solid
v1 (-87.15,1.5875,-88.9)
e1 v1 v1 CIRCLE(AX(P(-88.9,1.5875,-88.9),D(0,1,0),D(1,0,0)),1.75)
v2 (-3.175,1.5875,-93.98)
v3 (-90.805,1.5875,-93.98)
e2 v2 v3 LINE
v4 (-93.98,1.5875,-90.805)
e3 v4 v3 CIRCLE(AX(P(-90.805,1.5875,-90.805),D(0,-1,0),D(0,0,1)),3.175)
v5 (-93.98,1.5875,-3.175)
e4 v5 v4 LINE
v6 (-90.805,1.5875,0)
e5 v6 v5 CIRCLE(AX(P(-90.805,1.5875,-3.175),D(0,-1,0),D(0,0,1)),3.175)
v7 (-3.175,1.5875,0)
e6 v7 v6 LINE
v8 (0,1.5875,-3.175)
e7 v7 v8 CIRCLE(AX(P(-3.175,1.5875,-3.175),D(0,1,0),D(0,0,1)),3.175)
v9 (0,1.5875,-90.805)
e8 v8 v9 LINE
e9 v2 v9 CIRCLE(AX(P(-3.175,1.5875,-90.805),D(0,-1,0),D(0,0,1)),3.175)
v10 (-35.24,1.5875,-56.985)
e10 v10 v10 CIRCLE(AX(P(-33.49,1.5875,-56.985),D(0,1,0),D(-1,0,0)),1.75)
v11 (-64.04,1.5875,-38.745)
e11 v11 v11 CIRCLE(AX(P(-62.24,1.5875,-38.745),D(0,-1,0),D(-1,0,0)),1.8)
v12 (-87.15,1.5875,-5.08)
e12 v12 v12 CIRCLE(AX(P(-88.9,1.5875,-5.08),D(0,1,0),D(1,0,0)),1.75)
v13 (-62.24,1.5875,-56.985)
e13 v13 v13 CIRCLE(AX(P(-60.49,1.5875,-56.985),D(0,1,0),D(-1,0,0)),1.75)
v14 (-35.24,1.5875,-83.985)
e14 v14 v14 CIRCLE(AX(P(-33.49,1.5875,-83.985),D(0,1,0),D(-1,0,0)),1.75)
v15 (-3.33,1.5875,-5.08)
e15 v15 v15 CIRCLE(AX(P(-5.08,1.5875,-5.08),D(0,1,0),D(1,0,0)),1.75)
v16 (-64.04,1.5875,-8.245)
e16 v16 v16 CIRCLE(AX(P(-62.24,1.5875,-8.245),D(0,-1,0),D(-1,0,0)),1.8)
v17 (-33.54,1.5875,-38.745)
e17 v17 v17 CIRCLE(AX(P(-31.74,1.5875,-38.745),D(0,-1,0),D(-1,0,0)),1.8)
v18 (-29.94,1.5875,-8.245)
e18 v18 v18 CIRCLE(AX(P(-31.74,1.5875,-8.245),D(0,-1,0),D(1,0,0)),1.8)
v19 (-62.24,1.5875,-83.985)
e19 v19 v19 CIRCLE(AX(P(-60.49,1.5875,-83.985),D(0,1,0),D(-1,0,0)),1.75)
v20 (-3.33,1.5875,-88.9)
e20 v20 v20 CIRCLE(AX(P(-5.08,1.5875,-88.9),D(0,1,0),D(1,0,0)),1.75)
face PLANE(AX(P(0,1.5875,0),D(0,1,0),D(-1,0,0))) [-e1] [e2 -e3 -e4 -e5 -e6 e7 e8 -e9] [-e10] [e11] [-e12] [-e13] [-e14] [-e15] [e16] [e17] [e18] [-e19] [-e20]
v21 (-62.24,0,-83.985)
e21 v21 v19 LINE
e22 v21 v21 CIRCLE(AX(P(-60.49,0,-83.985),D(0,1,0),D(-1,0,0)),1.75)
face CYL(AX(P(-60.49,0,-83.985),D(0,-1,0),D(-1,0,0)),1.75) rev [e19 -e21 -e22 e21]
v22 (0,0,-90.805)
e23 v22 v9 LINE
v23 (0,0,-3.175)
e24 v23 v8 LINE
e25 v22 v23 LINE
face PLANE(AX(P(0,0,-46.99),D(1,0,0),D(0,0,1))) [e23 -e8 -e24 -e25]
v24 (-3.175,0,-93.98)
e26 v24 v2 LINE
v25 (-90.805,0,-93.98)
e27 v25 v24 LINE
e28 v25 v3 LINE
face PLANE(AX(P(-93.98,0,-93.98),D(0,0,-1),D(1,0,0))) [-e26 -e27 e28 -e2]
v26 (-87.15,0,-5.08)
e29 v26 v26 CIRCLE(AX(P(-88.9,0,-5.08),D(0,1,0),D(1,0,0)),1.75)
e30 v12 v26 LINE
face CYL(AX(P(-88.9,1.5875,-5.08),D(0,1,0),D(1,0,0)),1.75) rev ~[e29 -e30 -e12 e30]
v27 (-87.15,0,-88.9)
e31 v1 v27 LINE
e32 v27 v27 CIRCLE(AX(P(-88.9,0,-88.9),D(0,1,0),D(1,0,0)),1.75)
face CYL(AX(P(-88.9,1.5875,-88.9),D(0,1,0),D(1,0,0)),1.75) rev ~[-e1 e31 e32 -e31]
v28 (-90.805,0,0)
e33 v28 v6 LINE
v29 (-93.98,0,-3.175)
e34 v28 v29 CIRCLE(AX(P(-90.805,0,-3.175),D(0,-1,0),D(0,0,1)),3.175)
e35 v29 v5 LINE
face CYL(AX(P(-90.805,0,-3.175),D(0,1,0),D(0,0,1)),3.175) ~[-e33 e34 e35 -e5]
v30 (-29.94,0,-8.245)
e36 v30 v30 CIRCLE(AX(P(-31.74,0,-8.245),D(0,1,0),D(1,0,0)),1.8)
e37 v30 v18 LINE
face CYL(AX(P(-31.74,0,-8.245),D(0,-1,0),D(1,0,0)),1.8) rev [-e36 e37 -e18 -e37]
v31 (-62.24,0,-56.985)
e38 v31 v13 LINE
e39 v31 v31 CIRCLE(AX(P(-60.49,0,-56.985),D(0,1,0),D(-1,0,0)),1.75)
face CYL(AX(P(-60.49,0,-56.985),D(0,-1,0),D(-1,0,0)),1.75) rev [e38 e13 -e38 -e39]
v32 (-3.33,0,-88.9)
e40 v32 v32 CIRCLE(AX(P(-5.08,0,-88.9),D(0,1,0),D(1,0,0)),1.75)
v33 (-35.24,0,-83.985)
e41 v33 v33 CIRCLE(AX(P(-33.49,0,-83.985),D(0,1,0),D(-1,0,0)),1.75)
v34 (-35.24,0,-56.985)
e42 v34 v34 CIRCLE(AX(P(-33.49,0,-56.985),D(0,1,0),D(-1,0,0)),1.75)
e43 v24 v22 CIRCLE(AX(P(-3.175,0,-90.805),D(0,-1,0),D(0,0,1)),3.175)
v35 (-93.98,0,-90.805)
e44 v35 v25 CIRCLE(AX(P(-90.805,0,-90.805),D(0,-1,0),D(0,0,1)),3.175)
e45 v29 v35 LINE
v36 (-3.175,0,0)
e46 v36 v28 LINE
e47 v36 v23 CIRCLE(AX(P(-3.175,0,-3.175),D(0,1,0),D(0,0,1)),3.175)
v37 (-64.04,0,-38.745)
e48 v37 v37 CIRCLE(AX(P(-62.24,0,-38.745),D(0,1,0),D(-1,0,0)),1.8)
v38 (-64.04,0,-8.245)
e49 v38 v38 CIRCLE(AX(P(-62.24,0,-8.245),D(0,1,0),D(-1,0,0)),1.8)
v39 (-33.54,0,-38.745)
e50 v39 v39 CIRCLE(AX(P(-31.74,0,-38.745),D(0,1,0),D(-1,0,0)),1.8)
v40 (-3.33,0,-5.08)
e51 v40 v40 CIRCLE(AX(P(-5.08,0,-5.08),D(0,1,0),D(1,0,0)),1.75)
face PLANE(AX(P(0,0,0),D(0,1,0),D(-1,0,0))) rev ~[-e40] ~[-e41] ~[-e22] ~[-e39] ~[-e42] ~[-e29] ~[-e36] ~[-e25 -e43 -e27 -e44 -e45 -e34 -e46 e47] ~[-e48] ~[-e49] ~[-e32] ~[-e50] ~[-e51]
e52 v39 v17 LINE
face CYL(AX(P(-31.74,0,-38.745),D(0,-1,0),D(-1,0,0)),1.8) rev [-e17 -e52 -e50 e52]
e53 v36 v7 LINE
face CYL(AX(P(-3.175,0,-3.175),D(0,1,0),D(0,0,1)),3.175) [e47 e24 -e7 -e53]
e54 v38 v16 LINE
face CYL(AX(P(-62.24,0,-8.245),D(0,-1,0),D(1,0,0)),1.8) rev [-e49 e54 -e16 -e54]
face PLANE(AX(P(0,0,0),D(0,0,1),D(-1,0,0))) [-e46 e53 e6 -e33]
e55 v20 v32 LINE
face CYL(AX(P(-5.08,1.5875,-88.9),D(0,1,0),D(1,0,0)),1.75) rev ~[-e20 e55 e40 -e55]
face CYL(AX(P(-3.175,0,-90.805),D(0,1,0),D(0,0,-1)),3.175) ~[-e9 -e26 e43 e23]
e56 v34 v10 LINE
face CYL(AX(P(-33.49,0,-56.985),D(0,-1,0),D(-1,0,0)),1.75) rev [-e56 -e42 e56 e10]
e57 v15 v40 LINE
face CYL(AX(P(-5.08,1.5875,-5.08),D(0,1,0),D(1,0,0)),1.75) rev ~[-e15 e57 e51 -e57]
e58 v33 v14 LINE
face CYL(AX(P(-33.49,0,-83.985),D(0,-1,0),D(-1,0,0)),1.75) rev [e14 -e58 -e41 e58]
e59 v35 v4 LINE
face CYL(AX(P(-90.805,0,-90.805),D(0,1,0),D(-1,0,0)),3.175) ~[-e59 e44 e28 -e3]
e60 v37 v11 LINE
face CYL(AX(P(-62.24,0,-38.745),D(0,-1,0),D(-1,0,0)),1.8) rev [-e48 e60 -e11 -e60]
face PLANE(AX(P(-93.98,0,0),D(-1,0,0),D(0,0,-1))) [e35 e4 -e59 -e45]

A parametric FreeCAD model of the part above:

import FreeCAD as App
import Part
import Sketcher

V = App.Vector
Q = App.Units.Quantity


def edges_at(feature, points):
    """Names of the edges that pass closest to the given points."""
    edges = feature.Shape.Edges
    near = lambda p: min(range(len(edges)), key=lambda i: edges[i].distToShape(Part.Vertex(*p))[0])
    return sorted({f"Edge{near(p) + 1}" for p in points})

doc = App.newDocument("Part")
body = doc.addObject("PartDesign::Body", "Body")

# Sketch on XZ plane
sketch1 = body.newObject("Sketcher::SketchObject", "Sketch")
sketch1.AttachmentSupport = (doc.getObject("XZ_Plane"), [""])
sketch1.MapMode = "FlatFace"
sketch1.addGeometry(Part.LineSegment(V(-93.98, 0, 0), V(0, 0, 0)), False)
sketch1.addGeometry(Part.LineSegment(V(0, 0, 0), V(0, -93.98, 0)), False)
sketch1.addGeometry(Part.LineSegment(V(0, -93.98, 0), V(-93.98, -93.98, 0)), False)
sketch1.addGeometry(Part.LineSegment(V(-93.98, -93.98, 0), V(-93.98, 0, 0)), False)
sketch1.addGeometry(Part.Circle(V(-33.49, -83.985, 0), V(0, 0, 1), 1.75), False)
sketch1.addGeometry(Part.Circle(V(-33.49, -56.985, 0), V(0, 0, 1), 1.75), False)
sketch1.addGeometry(Part.Circle(V(-60.49, -83.985, 0), V(0, 0, 1), 1.75), False)
sketch1.addGeometry(Part.Circle(V(-60.49, -56.985, 0), V(0, 0, 1), 1.75), False)
sketch1.addGeometry(Part.Circle(V(-31.74, -38.745, 0), V(0, 0, 1), 1.8), False)
sketch1.addGeometry(Part.Circle(V(-31.74, -8.245, 0), V(0, 0, 1), 1.8), False)
sketch1.addGeometry(Part.Circle(V(-62.24, -38.745, 0), V(0, 0, 1), 1.8), False)
sketch1.addGeometry(Part.Circle(V(-62.24, -8.245, 0), V(0, 0, 1), 1.8), False)
sketch1.addConstraint(Sketcher.Constraint("Coincident", 0, 2, 1, 1))
sketch1.addConstraint(Sketcher.Constraint("Coincident", 1, 2, 2, 1))
sketch1.addConstraint(Sketcher.Constraint("Coincident", 2, 2, 3, 1))
sketch1.addConstraint(Sketcher.Constraint("Coincident", 3, 2, 0, 1))
sketch1.addConstraint(Sketcher.Constraint("Horizontal", 0))
sketch1.addConstraint(Sketcher.Constraint("Vertical", 1))
sketch1.addConstraint(Sketcher.Constraint("Horizontal", 2))
sketch1.addConstraint(Sketcher.Constraint("Vertical", 3))
sketch1.addConstraint(Sketcher.Constraint("Coincident", 0, 2, -1, 1))
sketch1.addConstraint(Sketcher.Constraint("Equal", 4, 5))
sketch1.addConstraint(Sketcher.Constraint("Equal", 5, 6))
sketch1.addConstraint(Sketcher.Constraint("Equal", 6, 7))
sketch1.addConstraint(Sketcher.Constraint("Equal", 8, 9))
sketch1.addConstraint(Sketcher.Constraint("Equal", 9, 10))
sketch1.addConstraint(Sketcher.Constraint("Equal", 10, 11))
sketch1.addConstraint(Sketcher.Constraint("Horizontal", 4, 3, 6, 3))
sketch1.addConstraint(Sketcher.Constraint("Horizontal", 5, 3, 7, 3))
sketch1.addConstraint(Sketcher.Constraint("Horizontal", 8, 3, 10, 3))
sketch1.addConstraint(Sketcher.Constraint("Horizontal", 9, 3, 11, 3))
sketch1.addConstraint(Sketcher.Constraint("Vertical", 4, 3, 5, 3))
sketch1.addConstraint(Sketcher.Constraint("Vertical", 6, 3, 7, 3))
sketch1.addConstraint(Sketcher.Constraint("Vertical", 8, 3, 9, 3))
sketch1.addConstraint(Sketcher.Constraint("Vertical", 10, 3, 11, 3))
sketch1.addConstraint(Sketcher.Constraint("Equal", 2, 1))
sketch1.addConstraint(Sketcher.Constraint("DistanceX", 0, 1, 0, 2, Q("3.7 in")))
sketch1.addConstraint(Sketcher.Constraint("Diameter", 4, Q("0.1378 in")))
sketch1.addConstraint(Sketcher.Constraint("Diameter", 8, Q("3.6 mm")))
sketch1.addConstraint(Sketcher.Constraint("DistanceY", 4, 3, 5, 3, Q("1.063 in")))
sketch1.addConstraint(Sketcher.Constraint("DistanceX", 6, 3, 4, 3, Q("1.063 in")))
sketch1.addConstraint(Sketcher.Constraint("DistanceX", 4, 3, -1, 1, Q("1.3185 in")))
sketch1.addConstraint(Sketcher.Constraint("DistanceY", 4, 3, -1, 1, Q("3.3065 in")))
sketch1.addConstraint(Sketcher.Constraint("DistanceX", 8, 3, -1, 1, Q("1.2496 in")))
sketch1.addConstraint(Sketcher.Constraint("DistanceY", 8, 3, -1, 1, Q("1.5254 in")))
sketch1.addConstraint(Sketcher.Constraint("DistanceY", 9, 3, -1, 1, Q("0.3246 in")))
sketch1.addConstraint(Sketcher.Constraint("DistanceX", 10, 3, -1, 1, Q("2.4504 in")))
pad1 = body.newObject("PartDesign::Pad", "Pad")
pad1.Profile = sketch1
pad1.Length = Q("0.0625 in")
pad1.Reversed = True
doc.recompute()

fillet = body.newObject("PartDesign::Fillet", "Fillet")
fillet.Base = (pad1, edges_at(pad1, [
    (0, 0.794, 0),
    (0, 0.794, -93.98),
    (-93.98, 0.794, 0),
    (-93.98, 0.794, -93.98),
]))
fillet.Radius = Q("0.125 in")

# Sketch on XZ plane
sketch2 = body.newObject("Sketcher::SketchObject", "Sketch001")
sketch2.AttachmentSupport = (doc.getObject("XZ_Plane"), [""])
sketch2.MapMode = "FlatFace"
sketch2.AttachmentOffset = App.Placement(V(0, 0, -0.0625 * 25.4), App.Rotation())
sketch2.addGeometry(Part.Circle(V(-88.9, -5.08, 0), V(0, 0, 1), 1.75), False)
sketch2.addGeometry(Part.Circle(V(-88.9, -88.9, 0), V(0, 0, 1), 1.75), False)
sketch2.addGeometry(Part.Circle(V(-5.08, -5.08, 0), V(0, 0, 1), 1.75), False)
sketch2.addGeometry(Part.Circle(V(-5.08, -88.9, 0), V(0, 0, 1), 1.75), False)
sketch2.addConstraint(Sketcher.Constraint("Equal", 0, 1))
sketch2.addConstraint(Sketcher.Constraint("Equal", 1, 2))
sketch2.addConstraint(Sketcher.Constraint("Equal", 2, 3))
sketch2.addConstraint(Sketcher.Constraint("Horizontal", 0, 3, 2, 3))
sketch2.addConstraint(Sketcher.Constraint("Horizontal", 1, 3, 3, 3))
sketch2.addConstraint(Sketcher.Constraint("Vertical", 0, 3, 1, 3))
sketch2.addConstraint(Sketcher.Constraint("Vertical", 2, 3, 3, 3))
sketch2.addConstraint(Sketcher.Constraint("Diameter", 0, Q("0.1378 in")))
sketch2.addConstraint(Sketcher.Constraint("DistanceX", 0, 3, -1, 1, Q("3.5 in")))
sketch2.addConstraint(Sketcher.Constraint("DistanceY", 0, 3, -1, 1, Q("0.2 in")))
sketch2.addConstraint(Sketcher.Constraint("DistanceY", 1, 3, -1, 1, Q("3.5 in")))
sketch2.addConstraint(Sketcher.Constraint("DistanceX", 2, 3, -1, 1, Q("0.2 in")))
pocket1 = body.newObject("PartDesign::Pocket", "Pocket")
pocket1.Profile = sketch2
pocket1.Length = Q("0.0625 in")
pocket1.Reversed = True

doc.recompute()
